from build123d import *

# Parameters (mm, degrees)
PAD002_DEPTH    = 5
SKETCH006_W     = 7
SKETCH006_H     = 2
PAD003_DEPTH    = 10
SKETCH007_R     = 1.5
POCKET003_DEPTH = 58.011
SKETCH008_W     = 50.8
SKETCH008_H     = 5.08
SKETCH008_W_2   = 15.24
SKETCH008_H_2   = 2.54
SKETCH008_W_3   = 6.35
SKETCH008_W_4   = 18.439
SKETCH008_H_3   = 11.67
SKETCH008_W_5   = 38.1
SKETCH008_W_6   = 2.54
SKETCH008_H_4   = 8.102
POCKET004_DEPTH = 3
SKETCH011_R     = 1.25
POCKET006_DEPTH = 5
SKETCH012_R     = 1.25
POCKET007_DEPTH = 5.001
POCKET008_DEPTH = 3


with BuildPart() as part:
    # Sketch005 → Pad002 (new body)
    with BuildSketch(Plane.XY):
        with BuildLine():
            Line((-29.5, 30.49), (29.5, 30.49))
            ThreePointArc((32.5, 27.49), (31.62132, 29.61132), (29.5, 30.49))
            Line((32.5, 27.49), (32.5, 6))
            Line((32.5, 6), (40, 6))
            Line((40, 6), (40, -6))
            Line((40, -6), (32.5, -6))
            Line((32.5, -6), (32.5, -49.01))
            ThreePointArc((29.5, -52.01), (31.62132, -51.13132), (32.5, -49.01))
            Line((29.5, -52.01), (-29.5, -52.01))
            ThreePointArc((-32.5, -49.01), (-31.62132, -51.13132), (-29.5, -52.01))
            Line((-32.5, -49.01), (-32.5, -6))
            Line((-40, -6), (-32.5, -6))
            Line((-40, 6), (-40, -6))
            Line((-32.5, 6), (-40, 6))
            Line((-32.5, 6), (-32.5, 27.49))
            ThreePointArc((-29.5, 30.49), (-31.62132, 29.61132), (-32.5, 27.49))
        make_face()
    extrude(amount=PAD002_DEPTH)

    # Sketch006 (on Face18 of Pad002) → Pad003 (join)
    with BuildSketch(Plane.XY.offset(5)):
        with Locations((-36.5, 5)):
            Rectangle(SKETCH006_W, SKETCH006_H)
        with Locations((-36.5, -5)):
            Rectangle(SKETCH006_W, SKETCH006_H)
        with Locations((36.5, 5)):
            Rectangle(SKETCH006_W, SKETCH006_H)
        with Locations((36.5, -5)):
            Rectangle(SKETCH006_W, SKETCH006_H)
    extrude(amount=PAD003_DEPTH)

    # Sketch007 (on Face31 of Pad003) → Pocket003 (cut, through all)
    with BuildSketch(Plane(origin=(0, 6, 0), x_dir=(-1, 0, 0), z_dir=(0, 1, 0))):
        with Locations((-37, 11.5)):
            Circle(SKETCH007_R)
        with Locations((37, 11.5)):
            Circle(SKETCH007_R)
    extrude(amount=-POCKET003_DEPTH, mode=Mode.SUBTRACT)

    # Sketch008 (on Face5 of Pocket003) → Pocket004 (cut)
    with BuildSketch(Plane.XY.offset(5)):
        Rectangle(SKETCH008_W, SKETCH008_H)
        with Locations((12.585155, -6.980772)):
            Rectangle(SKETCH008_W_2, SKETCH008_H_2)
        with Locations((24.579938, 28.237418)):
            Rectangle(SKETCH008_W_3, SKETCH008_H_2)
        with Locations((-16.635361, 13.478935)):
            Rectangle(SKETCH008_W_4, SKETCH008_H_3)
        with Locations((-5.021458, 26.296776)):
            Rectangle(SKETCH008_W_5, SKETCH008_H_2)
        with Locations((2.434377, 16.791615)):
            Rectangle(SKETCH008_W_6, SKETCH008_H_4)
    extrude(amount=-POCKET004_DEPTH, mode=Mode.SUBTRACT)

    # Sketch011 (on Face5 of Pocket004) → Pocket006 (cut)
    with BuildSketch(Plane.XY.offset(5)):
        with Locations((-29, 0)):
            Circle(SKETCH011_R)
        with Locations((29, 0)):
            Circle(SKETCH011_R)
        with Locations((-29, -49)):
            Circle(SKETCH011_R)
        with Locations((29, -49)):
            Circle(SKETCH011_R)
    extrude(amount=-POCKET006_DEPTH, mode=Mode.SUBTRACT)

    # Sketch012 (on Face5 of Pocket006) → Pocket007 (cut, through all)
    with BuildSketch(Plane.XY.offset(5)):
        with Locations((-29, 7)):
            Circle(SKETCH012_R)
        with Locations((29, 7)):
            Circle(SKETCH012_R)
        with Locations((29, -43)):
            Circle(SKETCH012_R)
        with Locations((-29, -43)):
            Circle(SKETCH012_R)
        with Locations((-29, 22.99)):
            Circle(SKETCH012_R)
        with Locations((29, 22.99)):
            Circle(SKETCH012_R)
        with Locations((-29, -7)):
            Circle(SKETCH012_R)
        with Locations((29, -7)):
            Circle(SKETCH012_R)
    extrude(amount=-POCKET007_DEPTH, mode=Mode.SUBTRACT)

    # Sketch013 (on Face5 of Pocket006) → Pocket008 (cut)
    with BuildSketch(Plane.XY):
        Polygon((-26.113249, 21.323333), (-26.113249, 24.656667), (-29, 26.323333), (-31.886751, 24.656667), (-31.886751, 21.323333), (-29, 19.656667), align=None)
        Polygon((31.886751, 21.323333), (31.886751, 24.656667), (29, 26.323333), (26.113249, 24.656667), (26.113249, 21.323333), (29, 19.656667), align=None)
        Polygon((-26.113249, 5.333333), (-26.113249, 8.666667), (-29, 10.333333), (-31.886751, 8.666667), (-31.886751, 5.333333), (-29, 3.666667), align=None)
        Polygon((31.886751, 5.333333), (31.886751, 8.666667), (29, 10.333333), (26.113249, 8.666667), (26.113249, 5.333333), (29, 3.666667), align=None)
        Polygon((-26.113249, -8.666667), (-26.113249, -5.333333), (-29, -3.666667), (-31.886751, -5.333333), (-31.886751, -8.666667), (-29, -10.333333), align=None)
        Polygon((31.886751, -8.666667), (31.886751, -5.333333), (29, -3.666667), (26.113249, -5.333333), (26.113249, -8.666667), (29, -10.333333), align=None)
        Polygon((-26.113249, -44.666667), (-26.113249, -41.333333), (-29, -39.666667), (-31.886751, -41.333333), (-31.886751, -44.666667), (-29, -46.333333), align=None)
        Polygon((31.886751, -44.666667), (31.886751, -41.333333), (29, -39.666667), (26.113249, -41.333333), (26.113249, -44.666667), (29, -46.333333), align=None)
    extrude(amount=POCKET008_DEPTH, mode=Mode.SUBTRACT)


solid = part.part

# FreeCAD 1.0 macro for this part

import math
import FreeCAD as App
import Part
import Sketcher
Q = App.Units.Quantity

doc = App.newDocument("Part")
params = doc.addObject("Spreadsheet::Sheet", "Params")
for row, (alias, value) in enumerate([
    ("sketch1_radius", "3.000001 mm"),
    ("sketch1_width", "59 mm"),
    ("sketch1_height", "12 mm"),
    ("sketch1_width2", "7.5 mm"),
    ("sketch1_height2", "21.49 mm"),
    ("pad1_length", "5 mm"),
    ("sketch2_width", "7 mm"),
    ("sketch2_height", "2 mm"),
    ("pad2_length", "10 mm"),
    ("sketch3_diameter", "3 mm"),
    ("sketch4_width", "50.8 mm"),
    ("sketch4_width2", "38.1 mm"),
    ("sketch4_width3", "15.24 mm"),
    ("sketch4_width4", "6.35 mm"),
    ("sketch4_width5", "2.54 mm"),
    ("pocket2_length", "3 mm"),
    ("sketch5_diameter", "2.5 mm"),
    ("pocket3_length", "5 mm"),
    ("sketch6_diameter", "2.5 mm"),
    ("pocket5_length", "3 mm"),
], start=1):
    params.set(f"A{row}", alias)
    params.set(f"B{row}", "=" + value)
    params.setAlias(f"B{row}", alias)

body = doc.addObject("PartDesign::Body", "Body")

# Sketch on XY plane
sketch1 = body.newObject("Sketcher::SketchObject", "Sketch")
sketch1.AttachmentSupport = (doc.getObject("XY_Plane"), [""])
sketch1.MapMode = "FlatFace"
sketch1.addGeometry(Part.LineSegment(App.Vector(29.5, 30.49, 0), App.Vector(-29.5, 30.49, 0)), False)
sketch1.addGeometry(Part.ArcOfCircle(Part.Circle(App.Vector(-29.499999, 27.489999, 0), App.Vector(0, 0, 1), 3.000001), math.radians(90.000022), math.radians(179.999978)), False)
sketch1.addGeometry(Part.LineSegment(App.Vector(-32.5, 27.49, 0), App.Vector(-32.5, 6, 0)), False)
sketch1.addGeometry(Part.LineSegment(App.Vector(-32.5, 6, 0), App.Vector(-40, 6, 0)), False)
sketch1.addGeometry(Part.LineSegment(App.Vector(-40, 6, 0), App.Vector(-40, -6, 0)), False)
sketch1.addGeometry(Part.LineSegment(App.Vector(-40, -6, 0), App.Vector(-32.5, -6, 0)), False)
sketch1.addGeometry(Part.LineSegment(App.Vector(-32.5, -6, 0), App.Vector(-32.5, -49.01, 0)), False)
sketch1.addGeometry(Part.ArcOfCircle(Part.Circle(App.Vector(-29.499999, -49.009999, 0), App.Vector(0, 0, 1), 3.000001), math.radians(-179.999978), math.radians(-90.000022)), False)
sketch1.addGeometry(Part.LineSegment(App.Vector(-29.5, -52.01, 0), App.Vector(29.5, -52.01, 0)), False)
sketch1.addGeometry(Part.ArcOfCircle(Part.Circle(App.Vector(29.499999, -49.009999, 0), App.Vector(0, 0, 1), 3.000001), math.radians(-89.999978), math.radians(-0.000022)), False)
sketch1.addGeometry(Part.LineSegment(App.Vector(32.5, -49.01, 0), App.Vector(32.5, -6, 0)), False)
sketch1.addGeometry(Part.LineSegment(App.Vector(32.5, -6, 0), App.Vector(40, -6, 0)), False)
sketch1.addGeometry(Part.LineSegment(App.Vector(40, -6, 0), App.Vector(40, 6, 0)), False)
sketch1.addGeometry(Part.LineSegment(App.Vector(40, 6, 0), App.Vector(32.5, 6, 0)), False)
sketch1.addGeometry(Part.LineSegment(App.Vector(32.5, 6, 0), App.Vector(32.5, 27.49, 0)), False)
sketch1.addGeometry(Part.ArcOfCircle(Part.Circle(App.Vector(29.499999, 27.489999, 0), App.Vector(0, 0, 1), 3.000001), math.radians(0.000022), math.radians(89.999978)), False)
sketch1.addConstraint(Sketcher.Constraint("Tangent", 0, 2, 1, 1))
sketch1.addConstraint(Sketcher.Constraint("Tangent", 1, 2, 2, 1))
sketch1.addConstraint(Sketcher.Constraint("Coincident", 2, 2, 3, 1))
sketch1.addConstraint(Sketcher.Constraint("Coincident", 3, 2, 4, 1))
sketch1.addConstraint(Sketcher.Constraint("Coincident", 4, 2, 5, 1))
sketch1.addConstraint(Sketcher.Constraint("Coincident", 5, 2, 6, 1))
sketch1.addConstraint(Sketcher.Constraint("Tangent", 6, 2, 7, 1))
sketch1.addConstraint(Sketcher.Constraint("Tangent", 7, 2, 8, 1))
sketch1.addConstraint(Sketcher.Constraint("Tangent", 8, 2, 9, 1))
sketch1.addConstraint(Sketcher.Constraint("Tangent", 9, 2, 10, 1))
sketch1.addConstraint(Sketcher.Constraint("Coincident", 10, 2, 11, 1))
sketch1.addConstraint(Sketcher.Constraint("Coincident", 11, 2, 12, 1))
sketch1.addConstraint(Sketcher.Constraint("Coincident", 12, 2, 13, 1))
sketch1.addConstraint(Sketcher.Constraint("Coincident", 13, 2, 14, 1))
sketch1.addConstraint(Sketcher.Constraint("Tangent", 14, 2, 15, 1))
sketch1.addConstraint(Sketcher.Constraint("Tangent", 15, 2, 0, 1))
sketch1.addConstraint(Sketcher.Constraint("Horizontal", 0))
sketch1.addConstraint(Sketcher.Constraint("Vertical", 2))
sketch1.addConstraint(Sketcher.Constraint("Horizontal", 3))
sketch1.addConstraint(Sketcher.Constraint("Vertical", 4))
sketch1.addConstraint(Sketcher.Constraint("Horizontal", 5))
sketch1.addConstraint(Sketcher.Constraint("Vertical", 6))
sketch1.addConstraint(Sketcher.Constraint("Horizontal", 8))
sketch1.addConstraint(Sketcher.Constraint("Vertical", 10))
sketch1.addConstraint(Sketcher.Constraint("Horizontal", 11))
sketch1.addConstraint(Sketcher.Constraint("Vertical", 12))
sketch1.addConstraint(Sketcher.Constraint("Horizontal", 13))
sketch1.addConstraint(Sketcher.Constraint("Vertical", 14))
sketch1.addConstraint(Sketcher.Constraint("Equal", 1, 7))
sketch1.addConstraint(Sketcher.Constraint("Equal", 7, 9))
sketch1.addConstraint(Sketcher.Constraint("Equal", 9, 15))
sketch1.addConstraint(Sketcher.Constraint("Symmetric", 2, 2, 10, 2, -1, 1))
sketch1.addConstraint(Sketcher.Constraint("Symmetric", 4, 2, 12, 2, -1, 1))
sketch1.addConstraint(Sketcher.Constraint("Symmetric", 5, 2, 10, 2, -2))
sketch1.addConstraint(Sketcher.Constraint("Vertical", 9, 3, 15, 3))
sketch1.addConstraint(Sketcher.Constraint("Radius", 1, Q("3.000001 mm")))
sketch1.addConstraint(Sketcher.Constraint("DistanceX", 0, 2, 0, 1, Q("59 mm")))
sketch1.addConstraint(Sketcher.Constraint("DistanceY", 4, 2, 4, 1, Q("12 mm")))
sketch1.addConstraint(Sketcher.Constraint("DistanceX", 3, 2, 3, 1, Q("7.5 mm")))
sketch1.addConstraint(Sketcher.Constraint("DistanceY", 2, 2, 2, 1, Q("21.49 mm")))
sketch1.addConstraint(Sketcher.Constraint("DistanceY", 6, 2, 6, 1, Q("43.01 mm")))
sketch1.setExpression("Constraints[35]", "Params.sketch1_radius")
sketch1.setExpression("Constraints[36]", "Params.sketch1_width")
sketch1.setExpression("Constraints[37]", "Params.sketch1_height")
sketch1.setExpression("Constraints[38]", "Params.sketch1_width2")
sketch1.setExpression("Constraints[39]", "Params.sketch1_height2")
pad1 = body.newObject("PartDesign::Pad", "Pad")
pad1.Profile = sketch1
pad1.setExpression("Length", "Params.pad1_length")

# Sketch on XY plane
sketch2 = body.newObject("Sketcher::SketchObject", "Sketch001")
sketch2.AttachmentSupport = (doc.getObject("XY_Plane"), [""])
sketch2.MapMode = "FlatFace"
sketch2.AttachmentOffset = App.Placement(App.Vector(0, 0, 5), App.Rotation())
sketch2.addGeometry(Part.LineSegment(App.Vector(-40, 6, 0), App.Vector(-40, 4, 0)), False)
sketch2.addGeometry(Part.LineSegment(App.Vector(-40, 4, 0), App.Vector(-33, 4, 0)), False)
sketch2.addGeometry(Part.LineSegment(App.Vector(-33, 4, 0), App.Vector(-33, 6, 0)), False)
sketch2.addGeometry(Part.LineSegment(App.Vector(-33, 6, 0), App.Vector(-40, 6, 0)), False)
sketch2.addGeometry(Part.LineSegment(App.Vector(-40, -4, 0), App.Vector(-40, -6, 0)), False)
sketch2.addGeometry(Part.LineSegment(App.Vector(-40, -6, 0), App.Vector(-33, -6, 0)), False)
sketch2.addGeometry(Part.LineSegment(App.Vector(-33, -6, 0), App.Vector(-33, -4, 0)), False)
sketch2.addGeometry(Part.LineSegment(App.Vector(-33, -4, 0), App.Vector(-40, -4, 0)), False)
sketch2.addGeometry(Part.LineSegment(App.Vector(33, 6, 0), App.Vector(33, 4, 0)), False)
sketch2.addGeometry(Part.LineSegment(App.Vector(33, 4, 0), App.Vector(40, 4, 0)), False)
sketch2.addGeometry(Part.LineSegment(App.Vector(40, 4, 0), App.Vector(40, 6, 0)), False)
sketch2.addGeometry(Part.LineSegment(App.Vector(40, 6, 0), App.Vector(33, 6, 0)), False)
sketch2.addGeometry(Part.LineSegment(App.Vector(33, -4, 0), App.Vector(33, -6, 0)), False)
sketch2.addGeometry(Part.LineSegment(App.Vector(33, -6, 0), App.Vector(40, -6, 0)), False)
sketch2.addGeometry(Part.LineSegment(App.Vector(40, -6, 0), App.Vector(40, -4, 0)), False)
sketch2.addGeometry(Part.LineSegment(App.Vector(40, -4, 0), App.Vector(33, -4, 0)), False)
sketch2.addConstraint(Sketcher.Constraint("Coincident", 0, 2, 1, 1))
sketch2.addConstraint(Sketcher.Constraint("Coincident", 1, 2, 2, 1))
sketch2.addConstraint(Sketcher.Constraint("Coincident", 2, 2, 3, 1))
sketch2.addConstraint(Sketcher.Constraint("Coincident", 3, 2, 0, 1))
sketch2.addConstraint(Sketcher.Constraint("Coincident", 4, 2, 5, 1))
sketch2.addConstraint(Sketcher.Constraint("Coincident", 5, 2, 6, 1))
sketch2.addConstraint(Sketcher.Constraint("Coincident", 6, 2, 7, 1))
sketch2.addConstraint(Sketcher.Constraint("Coincident", 7, 2, 4, 1))
sketch2.addConstraint(Sketcher.Constraint("Coincident", 8, 2, 9, 1))
sketch2.addConstraint(Sketcher.Constraint("Coincident", 9, 2, 10, 1))
sketch2.addConstraint(Sketcher.Constraint("Coincident", 10, 2, 11, 1))
sketch2.addConstraint(Sketcher.Constraint("Coincident", 11, 2, 8, 1))
sketch2.addConstraint(Sketcher.Constraint("Coincident", 12, 2, 13, 1))
sketch2.addConstraint(Sketcher.Constraint("Coincident", 13, 2, 14, 1))
sketch2.addConstraint(Sketcher.Constraint("Coincident", 14, 2, 15, 1))
sketch2.addConstraint(Sketcher.Constraint("Coincident", 15, 2, 12, 1))
sketch2.addConstraint(Sketcher.Constraint("Vertical", 0))
sketch2.addConstraint(Sketcher.Constraint("Horizontal", 1))
sketch2.addConstraint(Sketcher.Constraint("Vertical", 2))
sketch2.addConstraint(Sketcher.Constraint("Horizontal", 3))
sketch2.addConstraint(Sketcher.Constraint("Vertical", 4))
sketch2.addConstraint(Sketcher.Constraint("Horizontal", 5))
sketch2.addConstraint(Sketcher.Constraint("Vertical", 6))
sketch2.addConstraint(Sketcher.Constraint("Horizontal", 7))
sketch2.addConstraint(Sketcher.Constraint("Vertical", 8))
sketch2.addConstraint(Sketcher.Constraint("Horizontal", 9))
sketch2.addConstraint(Sketcher.Constraint("Vertical", 10))
sketch2.addConstraint(Sketcher.Constraint("Horizontal", 11))
sketch2.addConstraint(Sketcher.Constraint("Vertical", 12))
sketch2.addConstraint(Sketcher.Constraint("Horizontal", 13))
sketch2.addConstraint(Sketcher.Constraint("Vertical", 14))
sketch2.addConstraint(Sketcher.Constraint("Horizontal", 15))
sketch2.addConstraint(Sketcher.Constraint("Symmetric", 6, 2, 8, 2, -1, 1))
sketch2.addConstraint(Sketcher.Constraint("Symmetric", 4, 2, 10, 2, -1, 1))
sketch2.addConstraint(Sketcher.Constraint("Symmetric", 2, 2, 12, 2, -1, 1))
sketch2.addConstraint(Sketcher.Constraint("Symmetric", 0, 2, 14, 2, -1, 1))
sketch2.addConstraint(Sketcher.Constraint("Symmetric", 1, 2, 8, 2, -2))
sketch2.addConstraint(Sketcher.Constraint("Symmetric", 3, 2, 10, 2, -2))
sketch2.addConstraint(Sketcher.Constraint("DistanceX", 1, 1, 1, 2, Q("7 mm")))
sketch2.addConstraint(Sketcher.Constraint("DistanceY", 0, 2, 0, 1, Q("2 mm")))
sketch2.addConstraint(Sketcher.Constraint("DistanceX", 0, 2, -1, 1, Q("40 mm")))
sketch2.addConstraint(Sketcher.Constraint("DistanceY", -1, 1, 0, 2, Q("4 mm")))
sketch2.setExpression("Constraints[38]", "Params.sketch2_width")
sketch2.setExpression("Constraints[39]", "Params.sketch2_height")
pad2 = body.newObject("PartDesign::Pad", "Pad001")
pad2.Profile = sketch2
pad2.setExpression("Length", "Params.pad2_length")

# Sketch on XZ plane
sketch3 = body.newObject("Sketcher::SketchObject", "Sketch002")
sketch3.AttachmentSupport = (doc.getObject("XZ_Plane"), [""])
sketch3.MapMode = "FlatFace"
sketch3.AttachmentOffset = App.Placement(App.Vector(0, 0, -6), App.Rotation())
sketch3.addGeometry(Part.Circle(App.Vector(37, 11.5, 0), App.Vector(0, 0, 1), 1.5), False)
sketch3.addGeometry(Part.Circle(App.Vector(-37, 11.5, 0), App.Vector(0, 0, 1), 1.5), False)
sketch3.addConstraint(Sketcher.Constraint("Equal", 0, 1))
sketch3.addConstraint(Sketcher.Constraint("Symmetric", 0, 3, 1, 3, -2))
sketch3.addConstraint(Sketcher.Constraint("Diameter", 0, Q("3 mm")))
sketch3.addConstraint(Sketcher.Constraint("DistanceX", -1, 1, 0, 3, Q("37 mm")))
sketch3.addConstraint(Sketcher.Constraint("DistanceY", -1, 1, 0, 3, Q("11.5 mm")))
sketch3.setExpression("Constraints[2]", "Params.sketch3_diameter")
pocket1 = body.newObject("PartDesign::Pocket", "Pocket")
pocket1.Profile = sketch3
pocket1.Type = "ThroughAll"
pocket1.Reversed = True

# Sketch on XY plane
sketch4 = body.newObject("Sketcher::SketchObject", "Sketch003")
sketch4.AttachmentSupport = (doc.getObject("XY_Plane"), [""])
sketch4.MapMode = "FlatFace"
sketch4.AttachmentOffset = App.Placement(App.Vector(0, 0, 5), App.Rotation())
sketch4.addGeometry(Part.LineSegment(App.Vector(-25.4, 2.54, 0), App.Vector(-25.4, -2.54, 0)), False)
sketch4.addGeometry(Part.LineSegment(App.Vector(-25.4, -2.54, 0), App.Vector(25.4, -2.54, 0)), False)
sketch4.addGeometry(Part.LineSegment(App.Vector(25.4, -2.54, 0), App.Vector(25.4, 2.54, 0)), False)
sketch4.addGeometry(Part.LineSegment(App.Vector(25.4, 2.54, 0), App.Vector(-25.4, 2.54, 0)), False)
sketch4.addGeometry(Part.LineSegment(App.Vector(4.965155, -5.710772, 0), App.Vector(4.965155, -8.250772, 0)), False)
sketch4.addGeometry(Part.LineSegment(App.Vector(4.965155, -8.250772, 0), App.Vector(20.205155, -8.250772, 0)), False)
sketch4.addGeometry(Part.LineSegment(App.Vector(20.205155, -8.250772, 0), App.Vector(20.205155, -5.710772, 0)), False)
sketch4.addGeometry(Part.LineSegment(App.Vector(20.205155, -5.710772, 0), App.Vector(4.965155, -5.710772, 0)), False)
sketch4.addGeometry(Part.LineSegment(App.Vector(21.404938, 29.507418, 0), App.Vector(21.404938, 26.967418, 0)), False)
sketch4.addGeometry(Part.LineSegment(App.Vector(21.404938, 26.967418, 0), App.Vector(27.754938, 26.967418, 0)), False)
sketch4.addGeometry(Part.LineSegment(App.Vector(27.754938, 26.967418, 0), App.Vector(27.754938, 29.507418, 0)), False)
sketch4.addGeometry(Part.LineSegment(App.Vector(27.754938, 29.507418, 0), App.Vector(21.404938, 29.507418, 0)), False)
sketch4.addGeometry(Part.LineSegment(App.Vector(-25.854861, 19.313935, 0), App.Vector(-25.854861, 7.643935, 0)), False)
sketch4.addGeometry(Part.LineSegment(App.Vector(-25.854861, 7.643935, 0), App.Vector(-7.415861, 7.643935, 0)), False)
sketch4.addGeometry(Part.LineSegment(App.Vector(-7.415861, 7.643935, 0), App.Vector(-7.415861, 19.313935, 0)), False)
sketch4.addGeometry(Part.LineSegment(App.Vector(-7.415861, 19.313935, 0), App.Vector(-25.854861, 19.313935, 0)), False)
sketch4.addGeometry(Part.LineSegment(App.Vector(-24.071458, 27.566776, 0), App.Vector(-24.071458, 25.026776, 0)), False)
sketch4.addGeometry(Part.LineSegment(App.Vector(-24.071458, 25.026776, 0), App.Vector(14.028542, 25.026776, 0)), False)
sketch4.addGeometry(Part.LineSegment(App.Vector(14.028542, 25.026776, 0), App.Vector(14.028542, 27.566776, 0)), False)
sketch4.addGeometry(Part.LineSegment(App.Vector(14.028542, 27.566776, 0), App.Vector(-24.071458, 27.566776, 0)), False)
sketch4.addGeometry(Part.LineSegment(App.Vector(1.164377, 20.842615, 0), App.Vector(1.164377, 12.740615, 0)), False)
sketch4.addGeometry(Part.LineSegment(App.Vector(1.164377, 12.740615, 0), App.Vector(3.704377, 12.740615, 0)), False)
sketch4.addGeometry(Part.LineSegment(App.Vector(3.704377, 12.740615, 0), App.Vector(3.704377, 20.842615, 0)), False)
sketch4.addGeometry(Part.LineSegment(App.Vector(3.704377, 20.842615, 0), App.Vector(1.164377, 20.842615, 0)), False)
sketch4.addConstraint(Sketcher.Constraint("Coincident", 0, 2, 1, 1))
sketch4.addConstraint(Sketcher.Constraint("Coincident", 1, 2, 2, 1))
sketch4.addConstraint(Sketcher.Constraint("Coincident", 2, 2, 3, 1))
sketch4.addConstraint(Sketcher.Constraint("Coincident", 3, 2, 0, 1))
sketch4.addConstraint(Sketcher.Constraint("Coincident", 4, 2, 5, 1))
sketch4.addConstraint(Sketcher.Constraint("Coincident", 5, 2, 6, 1))
sketch4.addConstraint(Sketcher.Constraint("Coincident", 6, 2, 7, 1))
sketch4.addConstraint(Sketcher.Constraint("Coincident", 7, 2, 4, 1))
sketch4.addConstraint(Sketcher.Constraint("Coincident", 8, 2, 9, 1))
sketch4.addConstraint(Sketcher.Constraint("Coincident", 9, 2, 10, 1))
sketch4.addConstraint(Sketcher.Constraint("Coincident", 10, 2, 11, 1))
sketch4.addConstraint(Sketcher.Constraint("Coincident", 11, 2, 8, 1))
sketch4.addConstraint(Sketcher.Constraint("Coincident", 12, 2, 13, 1))
sketch4.addConstraint(Sketcher.Constraint("Coincident", 13, 2, 14, 1))
sketch4.addConstraint(Sketcher.Constraint("Coincident", 14, 2, 15, 1))
sketch4.addConstraint(Sketcher.Constraint("Coincident", 15, 2, 12, 1))
sketch4.addConstraint(Sketcher.Constraint("Coincident", 16, 2, 17, 1))
sketch4.addConstraint(Sketcher.Constraint("Coincident", 17, 2, 18, 1))
sketch4.addConstraint(Sketcher.Constraint("Coincident", 18, 2, 19, 1))
sketch4.addConstraint(Sketcher.Constraint("Coincident", 19, 2, 16, 1))
sketch4.addConstraint(Sketcher.Constraint("Coincident", 20, 2, 21, 1))
sketch4.addConstraint(Sketcher.Constraint("Coincident", 21, 2, 22, 1))
sketch4.addConstraint(Sketcher.Constraint("Coincident", 22, 2, 23, 1))
sketch4.addConstraint(Sketcher.Constraint("Coincident", 23, 2, 20, 1))
sketch4.addConstraint(Sketcher.Constraint("Vertical", 0))
sketch4.addConstraint(Sketcher.Constraint("Horizontal", 1))
sketch4.addConstraint(Sketcher.Constraint("Vertical", 2))
sketch4.addConstraint(Sketcher.Constraint("Horizontal", 3))
sketch4.addConstraint(Sketcher.Constraint("Vertical", 4))
sketch4.addConstraint(Sketcher.Constraint("Horizontal", 5))
sketch4.addConstraint(Sketcher.Constraint("Vertical", 6))
sketch4.addConstraint(Sketcher.Constraint("Horizontal", 7))
sketch4.addConstraint(Sketcher.Constraint("Vertical", 8))
sketch4.addConstraint(Sketcher.Constraint("Horizontal", 9))
sketch4.addConstraint(Sketcher.Constraint("Vertical", 10))
sketch4.addConstraint(Sketcher.Constraint("Horizontal", 11))
sketch4.addConstraint(Sketcher.Constraint("Vertical", 12))
sketch4.addConstraint(Sketcher.Constraint("Horizontal", 13))
sketch4.addConstraint(Sketcher.Constraint("Vertical", 14))
sketch4.addConstraint(Sketcher.Constraint("Horizontal", 15))
sketch4.addConstraint(Sketcher.Constraint("Vertical", 16))
sketch4.addConstraint(Sketcher.Constraint("Horizontal", 17))
sketch4.addConstraint(Sketcher.Constraint("Vertical", 18))
sketch4.addConstraint(Sketcher.Constraint("Horizontal", 19))
sketch4.addConstraint(Sketcher.Constraint("Vertical", 20))
sketch4.addConstraint(Sketcher.Constraint("Horizontal", 21))
sketch4.addConstraint(Sketcher.Constraint("Vertical", 22))
sketch4.addConstraint(Sketcher.Constraint("Horizontal", 23))
sketch4.addConstraint(Sketcher.Constraint("Symmetric", 0, 2, 2, 2, -1, 1))
sketch4.addConstraint(Sketcher.Constraint("Equal", 23, 4))
sketch4.addConstraint(Sketcher.Constraint("Equal", 6, 8))
sketch4.addConstraint(Sketcher.Constraint("Equal", 10, 16))
sketch4.addConstraint(Sketcher.Constraint("DistanceX", 1, 1, 1, 2, Q("50.8 mm")))
sketch4.addConstraint(Sketcher.Constraint("DistanceX", 17, 1, 17, 2, Q("38.1 mm")))
sketch4.addConstraint(Sketcher.Constraint("DistanceX", 5, 1, 5, 2, Q("15.24 mm")))
sketch4.addConstraint(Sketcher.Constraint("DistanceX", 9, 1, 9, 2, Q("6.35 mm")))
sketch4.addConstraint(Sketcher.Constraint("DistanceX", 21, 1, 21, 2, Q("2.54 mm")))
sketch4.addConstraint(Sketcher.Constraint("DistanceY", 0, 2, 0, 1, Q("5.08 mm")))
sketch4.addConstraint(Sketcher.Constraint("DistanceY", 12, 2, 12, 1, Q("11.67 mm")))
sketch4.addConstraint(Sketcher.Constraint("DistanceX", 13, 1, 13, 2, Q("18.439 mm")))
sketch4.addConstraint(Sketcher.Constraint("DistanceY", 20, 2, 20, 1, Q("8.102 mm")))
sketch4.addConstraint(Sketcher.Constraint("DistanceX", -1, 1, 8, 2, Q("21.404938 mm")))
sketch4.addConstraint(Sketcher.Constraint("DistanceY", -1, 1, 10, 2, Q("29.507418 mm")))
sketch4.addConstraint(Sketcher.Constraint("DistanceX", 12, 2, -1, 1, Q("25.854861 mm")))
sketch4.addConstraint(Sketcher.Constraint("DistanceX", 16, 2, -1, 1, Q("24.071458 mm")))
sketch4.addConstraint(Sketcher.Constraint("DistanceY", 4, 2, 1, 2, Q("5.710772 mm")))
sketch4.addConstraint(Sketcher.Constraint("DistanceY", 15, 2, 16, 2, Q("5.712841 mm")))
sketch4.addConstraint(Sketcher.Constraint("DistanceY", 17, 2, 8, 2, Q("1.940642 mm")))
sketch4.addConstraint(Sketcher.Constraint("DistanceY", 13, 2, 20, 2, Q("5.09668 mm")))
sketch4.addConstraint(Sketcher.Constraint("DistanceX", 20, 2, 7, 2, Q("3.800778 mm")))
sketch4.addConstraint(Sketcher.Constraint("DistanceX", -1, 1, 4, 2, Q("4.965155 mm")))
sketch4.setExpression("Constraints[52]", "Params.sketch4_width")
sketch4.setExpression("Constraints[53]", "Params.sketch4_width2")
sketch4.setExpression("Constraints[54]", "Params.sketch4_width3")
sketch4.setExpression("Constraints[55]", "Params.sketch4_width4")
sketch4.setExpression("Constraints[56]", "Params.sketch4_width5")
pocket2 = body.newObject("PartDesign::Pocket", "Pocket001")
pocket2.Profile = sketch4
pocket2.setExpression("Length", "Params.pocket2_length")

# Sketch on XY plane
sketch5 = body.newObject("Sketcher::SketchObject", "Sketch004")
sketch5.AttachmentSupport = (doc.getObject("XY_Plane"), [""])
sketch5.MapMode = "FlatFace"
sketch5.AttachmentOffset = App.Placement(App.Vector(0, 0, 5), App.Rotation())
sketch5.addGeometry(Part.Circle(App.Vector(-29, 0, 0), App.Vector(0, 0, 1), 1.25), False)
sketch5.addGeometry(Part.Circle(App.Vector(29, 0, 0), App.Vector(0, 0, 1), 1.25), False)
sketch5.addGeometry(Part.Circle(App.Vector(-29, -49, 0), App.Vector(0, 0, 1), 1.25), False)
sketch5.addGeometry(Part.Circle(App.Vector(29, -49, 0), App.Vector(0, 0, 1), 1.25), False)
sketch5.addConstraint(Sketcher.Constraint("Equal", 0, 1))
sketch5.addConstraint(Sketcher.Constraint("Equal", 1, 2))
sketch5.addConstraint(Sketcher.Constraint("Equal", 2, 3))
sketch5.addConstraint(Sketcher.Constraint("Symmetric", 0, 3, 1, 3, -1, 1))
sketch5.addConstraint(Sketcher.Constraint("Symmetric", 2, 3, 3, 3, -2))
sketch5.addConstraint(Sketcher.Constraint("PointOnObject", 0, 3, -1))
sketch5.addConstraint(Sketcher.Constraint("Vertical", 0, 3, 2, 3))
sketch5.addConstraint(Sketcher.Constraint("Diameter", 0, Q("2.5 mm")))
sketch5.addConstraint(Sketcher.Constraint("DistanceX", 0, 3, -1, 1, Q("29 mm")))
sketch5.addConstraint(Sketcher.Constraint("DistanceY", 2, 3, -1, 1, Q("49 mm")))
sketch5.setExpression("Constraints[7]", "Params.sketch5_diameter")
pocket3 = body.newObject("PartDesign::Pocket", "Pocket002")
pocket3.Profile = sketch5
pocket3.setExpression("Length", "Params.pocket3_length")

# Sketch on XY plane
sketch6 = body.newObject("Sketcher::SketchObject", "Sketch005")
sketch6.AttachmentSupport = (doc.getObject("XY_Plane"), [""])
sketch6.MapMode = "FlatFace"
sketch6.AttachmentOffset = App.Placement(App.Vector(0, 0, 5), App.Rotation())
sketch6.addGeometry(Part.Circle(App.Vector(-29, 7, 0), App.Vector(0, 0, 1), 1.25), False)
sketch6.addGeometry(Part.Circle(App.Vector(29, 7, 0), App.Vector(0, 0, 1), 1.25), False)
sketch6.addGeometry(Part.Circle(App.Vector(29, -43, 0), App.Vector(0, 0, 1), 1.25), False)
sketch6.addGeometry(Part.Circle(App.Vector(-29, -43, 0), App.Vector(0, 0, 1), 1.25), False)
sketch6.addGeometry(Part.Circle(App.Vector(-29, 22.99, 0), App.Vector(0, 0, 1), 1.25), False)
sketch6.addGeometry(Part.Circle(App.Vector(29, 22.99, 0), App.Vector(0, 0, 1), 1.25), False)
sketch6.addGeometry(Part.Circle(App.Vector(-29, -7, 0), App.Vector(0, 0, 1), 1.25), False)
sketch6.addGeometry(Part.Circle(App.Vector(29, -7, 0), App.Vector(0, 0, 1), 1.25), False)
sketch6.addConstraint(Sketcher.Constraint("Equal", 0, 1))
sketch6.addConstraint(Sketcher.Constraint("Equal", 1, 2))
sketch6.addConstraint(Sketcher.Constraint("Equal", 2, 3))
sketch6.addConstraint(Sketcher.Constraint("Equal", 3, 4))
sketch6.addConstraint(Sketcher.Constraint("Equal", 4, 5))
sketch6.addConstraint(Sketcher.Constraint("Equal", 5, 6))
sketch6.addConstraint(Sketcher.Constraint("Equal", 6, 7))
sketch6.addConstraint(Sketcher.Constraint("Symmetric", 1, 3, 6, 3, -1, 1))
sketch6.addConstraint(Sketcher.Constraint("Symmetric", 0, 3, 7, 3, -1, 1))
sketch6.addConstraint(Sketcher.Constraint("Symmetric", 0, 3, 1, 3, -2))
sketch6.addConstraint(Sketcher.Constraint("Symmetric", 2, 3, 3, 3, -2))
sketch6.addConstraint(Sketcher.Constraint("Symmetric", 4, 3, 5, 3, -2))
sketch6.addConstraint(Sketcher.Constraint("Vertical", 1, 3, 2, 3))
sketch6.addConstraint(Sketcher.Constraint("Vertical", 3, 3, 4, 3))
sketch6.addConstraint(Sketcher.Constraint("Diameter", 0, Q("2.5 mm")))
sketch6.addConstraint(Sketcher.Constraint("DistanceX", 0, 3, -1, 1, Q("29 mm")))
sketch6.addConstraint(Sketcher.Constraint("DistanceY", -1, 1, 0, 3, Q("7 mm")))
sketch6.addConstraint(Sketcher.Constraint("DistanceY", 2, 3, -1, 1, Q("43 mm")))
sketch6.addConstraint(Sketcher.Constraint("DistanceY", -1, 1, 4, 3, Q("22.99 mm")))
sketch6.setExpression("Constraints[14]", "Params.sketch6_diameter")
pocket4 = body.newObject("PartDesign::Pocket", "Pocket003")
pocket4.Profile = sketch6
pocket4.Type = "ThroughAll"

# Sketch on XY plane
sketch7 = body.newObject("Sketcher::SketchObject", "Sketch006")
sketch7.AttachmentSupport = (doc.getObject("XY_Plane"), [""])
sketch7.MapMode = "FlatFace"
sketch7.addGeometry(Part.LineSegment(App.Vector(-26.113249, 21.323333, 0), App.Vector(-26.113249, 24.656667, 0)), False)
sketch7.addGeometry(Part.LineSegment(App.Vector(-26.113249, 24.656667, 0), App.Vector(-29, 26.323333, 0)), False)
sketch7.addGeometry(Part.LineSegment(App.Vector(-29, 26.323333, 0), App.Vector(-31.886751, 24.656667, 0)), False)
sketch7.addGeometry(Part.LineSegment(App.Vector(-31.886751, 24.656667, 0), App.Vector(-31.886751, 21.323333, 0)), False)
sketch7.addGeometry(Part.LineSegment(App.Vector(-31.886751, 21.323333, 0), App.Vector(-29, 19.656667, 0)), False)
sketch7.addGeometry(Part.LineSegment(App.Vector(-29, 19.656667, 0), App.Vector(-26.113249, 21.323333, 0)), False)
sketch7.addGeometry(Part.LineSegment(App.Vector(31.886751, 21.323333, 0), App.Vector(31.886751, 24.656667, 0)), False)
sketch7.addGeometry(Part.LineSegment(App.Vector(31.886751, 24.656667, 0), App.Vector(29, 26.323333, 0)), False)
sketch7.addGeometry(Part.LineSegment(App.Vector(29, 26.323333, 0), App.Vector(26.113249, 24.656667, 0)), False)
sketch7.addGeometry(Part.LineSegment(App.Vector(26.113249, 24.656667, 0), App.Vector(26.113249, 21.323333, 0)), False)
sketch7.addGeometry(Part.LineSegment(App.Vector(26.113249, 21.323333, 0), App.Vector(29, 19.656667, 0)), False)
sketch7.addGeometry(Part.LineSegment(App.Vector(29, 19.656667, 0), App.Vector(31.886751, 21.323333, 0)), False)
sketch7.addGeometry(Part.LineSegment(App.Vector(-26.113249, 5.333333, 0), App.Vector(-26.113249, 8.666667, 0)), False)
sketch7.addGeometry(Part.LineSegment(App.Vector(-26.113249, 8.666667, 0), App.Vector(-29, 10.333333, 0)), False)
sketch7.addGeometry(Part.LineSegment(App.Vector(-29, 10.333333, 0), App.Vector(-31.886751, 8.666667, 0)), False)
sketch7.addGeometry(Part.LineSegment(App.Vector(-31.886751, 8.666667, 0), App.Vector(-31.886751, 5.333333, 0)), False)
sketch7.addGeometry(Part.LineSegment(App.Vector(-31.886751, 5.333333, 0), App.Vector(-29, 3.666667, 0)), False)
sketch7.addGeometry(Part.LineSegment(App.Vector(-29, 3.666667, 0), App.Vector(-26.113249, 5.333333, 0)), False)
sketch7.addGeometry(Part.LineSegment(App.Vector(31.886751, 5.333333, 0), App.Vector(31.886751, 8.666667, 0)), False)
sketch7.addGeometry(Part.LineSegment(App.Vector(31.886751, 8.666667, 0), App.Vector(29, 10.333333, 0)), False)
sketch7.addGeometry(Part.LineSegment(App.Vector(29, 10.333333, 0), App.Vector(26.113249, 8.666667, 0)), False)
sketch7.addGeometry(Part.LineSegment(App.Vector(26.113249, 8.666667, 0), App.Vector(26.113249, 5.333333, 0)), False)
sketch7.addGeometry(Part.LineSegment(App.Vector(26.113249, 5.333333, 0), App.Vector(29, 3.666667, 0)), False)
sketch7.addGeometry(Part.LineSegment(App.Vector(29, 3.666667, 0), App.Vector(31.886751, 5.333333, 0)), False)
sketch7.addGeometry(Part.LineSegment(App.Vector(-26.113249, -8.666667, 0), App.Vector(-26.113249, -5.333333, 0)), False)
sketch7.addGeometry(Part.LineSegment(App.Vector(-26.113249, -5.333333, 0), App.Vector(-29, -3.666667, 0)), False)
sketch7.addGeometry(Part.LineSegment(App.Vector(-29, -3.666667, 0), App.Vector(-31.886751, -5.333333, 0)), False)
sketch7.addGeometry(Part.LineSegment(App.Vector(-31.886751, -5.333333, 0), App.Vector(-31.886751, -8.666667, 0)), False)
sketch7.addGeometry(Part.LineSegment(App.Vector(-31.886751, -8.666667, 0), App.Vector(-29, -10.333333, 0)), False)
sketch7.addGeometry(Part.LineSegment(App.Vector(-29, -10.333333, 0), App.Vector(-26.113249, -8.666667, 0)), False)
sketch7.addGeometry(Part.LineSegment(App.Vector(31.886751, -8.666667, 0), App.Vector(31.886751, -5.333333, 0)), False)
sketch7.addGeometry(Part.LineSegment(App.Vector(31.886751, -5.333333, 0), App.Vector(29, -3.666667, 0)), False)
sketch7.addGeometry(Part.LineSegment(App.Vector(29, -3.666667, 0), App.Vector(26.113249, -5.333333, 0)), False)
sketch7.addGeometry(Part.LineSegment(App.Vector(26.113249, -5.333333, 0), App.Vector(26.113249, -8.666667, 0)), False)
sketch7.addGeometry(Part.LineSegment(App.Vector(26.113249, -8.666667, 0), App.Vector(29, -10.333333, 0)), False)
sketch7.addGeometry(Part.LineSegment(App.Vector(29, -10.333333, 0), App.Vector(31.886751, -8.666667, 0)), False)
sketch7.addGeometry(Part.LineSegment(App.Vector(-26.113249, -44.666667, 0), App.Vector(-26.113249, -41.333333, 0)), False)
sketch7.addGeometry(Part.LineSegment(App.Vector(-26.113249, -41.333333, 0), App.Vector(-29, -39.666667, 0)), False)
sketch7.addGeometry(Part.LineSegment(App.Vector(-29, -39.666667, 0), App.Vector(-31.886751, -41.333333, 0)), False)
sketch7.addGeometry(Part.LineSegment(App.Vector(-31.886751, -41.333333, 0), App.Vector(-31.886751, -44.666667, 0)), False)
sketch7.addGeometry(Part.LineSegment(App.Vector(-31.886751, -44.666667, 0), App.Vector(-29, -46.333333, 0)), False)
sketch7.addGeometry(Part.LineSegment(App.Vector(-29, -46.333333, 0), App.Vector(-26.113249, -44.666667, 0)), False)
sketch7.addGeometry(Part.LineSegment(App.Vector(31.886751, -44.666667, 0), App.Vector(31.886751, -41.333333, 0)), False)
sketch7.addGeometry(Part.LineSegment(App.Vector(31.886751, -41.333333, 0), App.Vector(29, -39.666667, 0)), False)
sketch7.addGeometry(Part.LineSegment(App.Vector(29, -39.666667, 0), App.Vector(26.113249, -41.333333, 0)), False)
sketch7.addGeometry(Part.LineSegment(App.Vector(26.113249, -41.333333, 0), App.Vector(26.113249, -44.666667, 0)), False)
sketch7.addGeometry(Part.LineSegment(App.Vector(26.113249, -44.666667, 0), App.Vector(29, -46.333333, 0)), False)
sketch7.addGeometry(Part.LineSegment(App.Vector(29, -46.333333, 0), App.Vector(31.886751, -44.666667, 0)), False)
sketch7.addConstraint(Sketcher.Constraint("Coincident", 0, 2, 1, 1))
sketch7.addConstraint(Sketcher.Constraint("Coincident", 1, 2, 2, 1))
sketch7.addConstraint(Sketcher.Constraint("Coincident", 2, 2, 3, 1))
sketch7.addConstraint(Sketcher.Constraint("Coincident", 3, 2, 4, 1))
sketch7.addConstraint(Sketcher.Constraint("Coincident", 4, 2, 5, 1))
sketch7.addConstraint(Sketcher.Constraint("Coincident", 5, 2, 0, 1))
sketch7.addConstraint(Sketcher.Constraint("Coincident", 6, 2, 7, 1))
sketch7.addConstraint(Sketcher.Constraint("Coincident", 7, 2, 8, 1))
sketch7.addConstraint(Sketcher.Constraint("Coincident", 8, 2, 9, 1))
sketch7.addConstraint(Sketcher.Constraint("Coincident", 9, 2, 10, 1))
sketch7.addConstraint(Sketcher.Constraint("Coincident", 10, 2, 11, 1))
sketch7.addConstraint(Sketcher.Constraint("Coincident", 11, 2, 6, 1))
sketch7.addConstraint(Sketcher.Constraint("Coincident", 12, 2, 13, 1))
sketch7.addConstraint(Sketcher.Constraint("Coincident", 13, 2, 14, 1))
sketch7.addConstraint(Sketcher.Constraint("Coincident", 14, 2, 15, 1))
sketch7.addConstraint(Sketcher.Constraint("Coincident", 15, 2, 16, 1))
sketch7.addConstraint(Sketcher.Constraint("Coincident", 16, 2, 17, 1))
sketch7.addConstraint(Sketcher.Constraint("Coincident", 17, 2, 12, 1))
sketch7.addConstraint(Sketcher.Constraint("Coincident", 18, 2, 19, 1))
sketch7.addConstraint(Sketcher.Constraint("Coincident", 19, 2, 20, 1))
sketch7.addConstraint(Sketcher.Constraint("Coincident", 20, 2, 21, 1))
sketch7.addConstraint(Sketcher.Constraint("Coincident", 21, 2, 22, 1))
sketch7.addConstraint(Sketcher.Constraint("Coincident", 22, 2, 23, 1))
sketch7.addConstraint(Sketcher.Constraint("Coincident", 23, 2, 18, 1))
sketch7.addConstraint(Sketcher.Constraint("Coincident", 24, 2, 25, 1))
sketch7.addConstraint(Sketcher.Constraint("Coincident", 25, 2, 26, 1))
sketch7.addConstraint(Sketcher.Constraint("Coincident", 26, 2, 27, 1))
sketch7.addConstraint(Sketcher.Constraint("Coincident", 27, 2, 28, 1))
sketch7.addConstraint(Sketcher.Constraint("Coincident", 28, 2, 29, 1))
sketch7.addConstraint(Sketcher.Constraint("Coincident", 29, 2, 24, 1))
sketch7.addConstraint(Sketcher.Constraint("Coincident", 30, 2, 31, 1))
sketch7.addConstraint(Sketcher.Constraint("Coincident", 31, 2, 32, 1))
sketch7.addConstraint(Sketcher.Constraint("Coincident", 32, 2, 33, 1))
sketch7.addConstraint(Sketcher.Constraint("Coincident", 33, 2, 34, 1))
sketch7.addConstraint(Sketcher.Constraint("Coincident", 34, 2, 35, 1))
sketch7.addConstraint(Sketcher.Constraint("Coincident", 35, 2, 30, 1))
sketch7.addConstraint(Sketcher.Constraint("Coincident", 36, 2, 37, 1))
sketch7.addConstraint(Sketcher.Constraint("Coincident", 37, 2, 38, 1))
sketch7.addConstraint(Sketcher.Constraint("Coincident", 38, 2, 39, 1))
sketch7.addConstraint(Sketcher.Constraint("Coincident", 39, 2, 40, 1))
sketch7.addConstraint(Sketcher.Constraint("Coincident", 40, 2, 41, 1))
sketch7.addConstraint(Sketcher.Constraint("Coincident", 41, 2, 36, 1))
sketch7.addConstraint(Sketcher.Constraint("Coincident", 42, 2, 43, 1))
sketch7.addConstraint(Sketcher.Constraint("Coincident", 43, 2, 44, 1))
sketch7.addConstraint(Sketcher.Constraint("Coincident", 44, 2, 45, 1))
sketch7.addConstraint(Sketcher.Constraint("Coincident", 45, 2, 46, 1))
sketch7.addConstraint(Sketcher.Constraint("Coincident", 46, 2, 47, 1))
sketch7.addConstraint(Sketcher.Constraint("Coincident", 47, 2, 42, 1))
sketch7.addConstraint(Sketcher.Constraint("Vertical", 0))
sketch7.addConstraint(Sketcher.Constraint("Vertical", 3))
sketch7.addConstraint(Sketcher.Constraint("Vertical", 6))
sketch7.addConstraint(Sketcher.Constraint("Vertical", 9))
sketch7.addConstraint(Sketcher.Constraint("Vertical", 12))
sketch7.addConstraint(Sketcher.Constraint("Vertical", 15))
sketch7.addConstraint(Sketcher.Constraint("Vertical", 18))
sketch7.addConstraint(Sketcher.Constraint("Vertical", 21))
sketch7.addConstraint(Sketcher.Constraint("Vertical", 24))
sketch7.addConstraint(Sketcher.Constraint("Vertical", 27))
sketch7.addConstraint(Sketcher.Constraint("Vertical", 30))
sketch7.addConstraint(Sketcher.Constraint("Vertical", 33))
sketch7.addConstraint(Sketcher.Constraint("Vertical", 36))
sketch7.addConstraint(Sketcher.Constraint("Vertical", 39))
sketch7.addConstraint(Sketcher.Constraint("Vertical", 42))
sketch7.addConstraint(Sketcher.Constraint("Vertical", 45))
sketch7.addConstraint(Sketcher.Constraint("Symmetric", 21, 2, 24, 2, -1, 1))
sketch7.addConstraint(Sketcher.Constraint("Symmetric", 22, 2, 25, 2, -1, 1))
sketch7.addConstraint(Sketcher.Constraint("Symmetric", 23, 2, 26, 2, -1, 1))
sketch7.addConstraint(Sketcher.Constraint("Symmetric", 19, 2, 28, 2, -1, 1))
sketch7.addConstraint(Sketcher.Constraint("Symmetric", 15, 2, 30, 2, -1, 1))
sketch7.addConstraint(Sketcher.Constraint("Symmetric", 16, 2, 31, 2, -1, 1))
sketch7.addConstraint(Sketcher.Constraint("Symmetric", 17, 2, 32, 2, -1, 1))
sketch7.addConstraint(Sketcher.Constraint("Symmetric", 13, 2, 34, 2, -1, 1))
sketch7.addConstraint(Sketcher.Constraint("Symmetric", 2, 2, 6, 2, -2))
sketch7.addConstraint(Sketcher.Constraint("Symmetric", 1, 2, 7, 2, -2))
sketch7.addConstraint(Sketcher.Constraint("Symmetric", 0, 2, 8, 2, -2))
sketch7.addConstraint(Sketcher.Constraint("Symmetric", 4, 2, 10, 2, -2))
sketch7.addConstraint(Sketcher.Constraint("Symmetric", 14, 2, 18, 2, -2))
sketch7.addConstraint(Sketcher.Constraint("Symmetric", 13, 2, 19, 2, -2))
sketch7.addConstraint(Sketcher.Constraint("Symmetric", 12, 2, 20, 2, -2))
sketch7.addConstraint(Sketcher.Constraint("Symmetric", 16, 2, 22, 2, -2))
sketch7.addConstraint(Sketcher.Constraint("Symmetric", 38, 2, 42, 2, -2))
sketch7.addConstraint(Sketcher.Constraint("Symmetric", 37, 2, 43, 2, -2))
sketch7.addConstraint(Sketcher.Constraint("Symmetric", 36, 2, 44, 2, -2))
sketch7.addConstraint(Sketcher.Constraint("Symmetric", 40, 2, 46, 2, -2))
sketch7.addConstraint(Sketcher.Constraint("Parallel", 1, 4))
sketch7.addConstraint(Sketcher.Constraint("Parallel", 2, 5))
sketch7.addConstraint(Sketcher.Constraint("Parallel", 4, 7))
sketch7.addConstraint(Sketcher.Constraint("Parallel", 7, 10))
sketch7.addConstraint(Sketcher.Constraint("Parallel", 8, 11))
sketch7.addConstraint(Sketcher.Constraint("Parallel", 10, 13))
sketch7.addConstraint(Sketcher.Constraint("Parallel", 11, 14))
sketch7.addConstraint(Sketcher.Constraint("Parallel", 13, 16))
sketch7.addConstraint(Sketcher.Constraint("Parallel", 14, 17))
sketch7.addConstraint(Sketcher.Constraint("Parallel", 19, 22))
sketch7.addConstraint(Sketcher.Constraint("Parallel", 20, 23))
sketch7.addConstraint(Sketcher.Constraint("Parallel", 25, 28))
sketch7.addConstraint(Sketcher.Constraint("Parallel", 26, 29))
sketch7.addConstraint(Sketcher.Constraint("Parallel", 31, 34))
sketch7.addConstraint(Sketcher.Constraint("Parallel", 32, 35))
sketch7.addConstraint(Sketcher.Constraint("Parallel", 34, 37))
sketch7.addConstraint(Sketcher.Constraint("Parallel", 35, 38))
sketch7.addConstraint(Sketcher.Constraint("Parallel", 37, 40))
sketch7.addConstraint(Sketcher.Constraint("Parallel", 38, 41))
sketch7.addConstraint(Sketcher.Constraint("Parallel", 43, 46))
sketch7.addConstraint(Sketcher.Constraint("Parallel", 44, 47))
sketch7.addConstraint(Sketcher.Constraint("Horizontal", 0, 2, 2, 2))
sketch7.addConstraint(Sketcher.Constraint("Horizontal", 3, 2, 5, 2))
sketch7.addConstraint(Sketcher.Constraint("Horizontal", 12, 2, 14, 2))
sketch7.addConstraint(Sketcher.Constraint("Horizontal", 15, 2, 17, 2))
sketch7.addConstraint(Sketcher.Constraint("Horizontal", 36, 2, 38, 2))
sketch7.addConstraint(Sketcher.Constraint("Horizontal", 39, 2, 41, 2))
sketch7.addConstraint(Sketcher.Constraint("Vertical", 5, 2, 12, 2))
sketch7.addConstraint(Sketcher.Constraint("Vertical", 4, 2, 13, 2))
sketch7.addConstraint(Sketcher.Constraint("Vertical", 29, 2, 36, 2))
sketch7.addConstraint(Sketcher.Constraint("Vertical", 28, 2, 37, 2))
sketch7.addConstraint(Sketcher.Constraint("Equal", 9, 12))
sketch7.addConstraint(Sketcher.Constraint("Equal", 33, 36))
sketch7.addConstraint(Sketcher.Constraint("Angle", 1, Q("150.000007 deg")))
sketch7.addConstraint(Sketcher.Constraint("DistanceX", 1, 2, -1, 1, Q("29 mm")))
sketch7.addConstraint(Sketcher.Constraint("DistanceY", 3, 2, 1, 2, Q("5 mm")))
sketch7.addConstraint(Sketcher.Constraint("DistanceY", 24, 2, 16, 2, Q("9 mm")))
sketch7.addConstraint(Sketcher.Constraint("DistanceY", 36, 2, 28, 2, Q("31 mm")))
sketch7.addConstraint(Sketcher.Constraint("DistanceY", 12, 2, 4, 2, Q("10.99 mm")))
sketch7.addConstraint(Sketcher.Constraint("DistanceY", 0, 1, 0, 2, Q("3.333334 mm")))
pocket5 = body.newObject("PartDesign::Pocket", "Pocket004")
pocket5.Profile = sketch7
pocket5.setExpression("Length", "Params.pocket5_length")
pocket5.Reversed = True

doc.recompute()
